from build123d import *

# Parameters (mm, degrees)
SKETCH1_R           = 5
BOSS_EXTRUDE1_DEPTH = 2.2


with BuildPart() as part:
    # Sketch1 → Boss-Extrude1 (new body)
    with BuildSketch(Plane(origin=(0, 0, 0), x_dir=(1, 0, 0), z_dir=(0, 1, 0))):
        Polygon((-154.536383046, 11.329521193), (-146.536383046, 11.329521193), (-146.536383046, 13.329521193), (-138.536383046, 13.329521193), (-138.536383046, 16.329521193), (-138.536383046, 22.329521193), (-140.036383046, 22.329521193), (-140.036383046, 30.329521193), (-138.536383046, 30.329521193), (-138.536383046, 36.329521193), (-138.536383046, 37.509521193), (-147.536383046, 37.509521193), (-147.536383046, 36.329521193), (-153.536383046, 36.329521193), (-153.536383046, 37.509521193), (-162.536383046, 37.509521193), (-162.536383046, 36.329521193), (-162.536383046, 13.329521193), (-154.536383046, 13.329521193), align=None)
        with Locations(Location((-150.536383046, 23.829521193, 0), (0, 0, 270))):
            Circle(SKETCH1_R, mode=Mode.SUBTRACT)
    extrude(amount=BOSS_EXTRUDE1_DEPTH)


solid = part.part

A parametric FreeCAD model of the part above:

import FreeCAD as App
import Part
import Sketcher

doc = App.newDocument("Part")
body = doc.addObject("PartDesign::Body", "Body")

sketch1 = body.newObject("Sketcher::SketchObject", "Sketch")
sketch1.AttachmentSupport = (doc.getObject("XZ_Plane"), [""])
sketch1.MapMode = "FlatFace"
sketch1.addGeometry(Part.LineSegment(App.Vector(-154.5, -11.3, 0), App.Vector(-146.5, -11.3, 0)), False)
sketch1.addGeometry(Part.LineSegment(App.Vector(-146.5, -11.3, 0), App.Vector(-146.5, -13.3, 0)), False)
sketch1.addGeometry(Part.LineSegment(App.Vector(-146.5, -13.3, 0), App.Vector(-138.5, -13.3, 0)), False)
sketch1.addGeometry(Part.LineSegment(App.Vector(-138.5, -13.3, 0), App.Vector(-138.5, -22.3, 0)), False)
sketch1.addGeometry(Part.LineSegment(App.Vector(-138.5, -22.3, 0), App.Vector(-140, -22.3, 0)), False)
sketch1.addGeometry(Part.LineSegment(App.Vector(-140, -22.3, 0), App.Vector(-140, -30.3, 0)), False)
sketch1.addGeometry(Part.LineSegment(App.Vector(-140, -30.3, 0), App.Vector(-138.5, -30.3, 0)), False)
sketch1.addGeometry(Part.LineSegment(App.Vector(-138.5, -30.3, 0), App.Vector(-138.5, -37.5, 0)), False)
sketch1.addGeometry(Part.LineSegment(App.Vector(-138.5, -37.5, 0), App.Vector(-147.5, -37.5, 0)), False)
sketch1.addGeometry(Part.LineSegment(App.Vector(-147.5, -37.5, 0), App.Vector(-147.5, -36.3, 0)), False)
sketch1.addGeometry(Part.LineSegment(App.Vector(-147.5, -36.3, 0), App.Vector(-153.5, -36.3, 0)), False)
sketch1.addGeometry(Part.LineSegment(App.Vector(-153.5, -36.3, 0), App.Vector(-153.5, -37.5, 0)), False)
sketch1.addGeometry(Part.LineSegment(App.Vector(-153.5, -37.5, 0), App.Vector(-162.5, -37.5, 0)), False)
sketch1.addGeometry(Part.LineSegment(App.Vector(-162.5, -37.5, 0), App.Vector(-162.5, -13.3, 0)), False)
sketch1.addGeometry(Part.LineSegment(App.Vector(-162.5, -13.3, 0), App.Vector(-154.5, -13.3, 0)), False)
sketch1.addGeometry(Part.LineSegment(App.Vector(-154.5, -13.3, 0), App.Vector(-154.5, -11.3, 0)), False)
sketch1.addGeometry(Part.Circle(App.Vector(-150.5, -23.8, 0), App.Vector(0, 0, 1), 5), False)
sketch1.addConstraint(Sketcher.Constraint("Coincident", 0, 2, 1, 1))
sketch1.addConstraint(Sketcher.Constraint("Coincident", 1, 2, 2, 1))
sketch1.addConstraint(Sketcher.Constraint("Coincident", 2, 2, 3, 1))
sketch1.addConstraint(Sketcher.Constraint("Coincident", 3, 2, 4, 1))
sketch1.addConstraint(Sketcher.Constraint("Coincident", 4, 2, 5, 1))
sketch1.addConstraint(Sketcher.Constraint("Coincident", 5, 2, 6, 1))
sketch1.addConstraint(Sketcher.Constraint("Coincident", 6, 2, 7, 1))
sketch1.addConstraint(Sketcher.Constraint("Coincident", 7, 2, 8, 1))
sketch1.addConstraint(Sketcher.Constraint("Coincident", 8, 2, 9, 1))
sketch1.addConstraint(Sketcher.Constraint("Coincident", 9, 2, 10, 1))
sketch1.addConstraint(Sketcher.Constraint("Coincident", 10, 2, 11, 1))
sketch1.addConstraint(Sketcher.Constraint("Coincident", 11, 2, 12, 1))
sketch1.addConstraint(Sketcher.Constraint("Coincident", 12, 2, 13, 1))
sketch1.addConstraint(Sketcher.Constraint("Coincident", 13, 2, 14, 1))
sketch1.addConstraint(Sketcher.Constraint("Coincident", 14, 2, 15, 1))
sketch1.addConstraint(Sketcher.Constraint("Coincident", 15, 2, 0, 1))
sketch1.addConstraint(Sketcher.Constraint("Horizontal", 0))
sketch1.addConstraint(Sketcher.Constraint("Vertical", 1))
sketch1.addConstraint(Sketcher.Constraint("Horizontal", 2))
sketch1.addConstraint(Sketcher.Constraint("Vertical", 3))
sketch1.addConstraint(Sketcher.Constraint("Horizontal", 4))
sketch1.addConstraint(Sketcher.Constraint("Vertical", 5))
sketch1.addConstraint(Sketcher.Constraint("Horizontal", 6))
sketch1.addConstraint(Sketcher.Constraint("Vertical", 7))
sketch1.addConstraint(Sketcher.Constraint("Horizontal", 8))
sketch1.addConstraint(Sketcher.Constraint("Vertical", 9))
sketch1.addConstraint(Sketcher.Constraint("Horizontal", 10))
sketch1.addConstraint(Sketcher.Constraint("Vertical", 11))
sketch1.addConstraint(Sketcher.Constraint("Horizontal", 12))
sketch1.addConstraint(Sketcher.Constraint("Vertical", 13))
sketch1.addConstraint(Sketcher.Constraint("Horizontal", 14))
sketch1.addConstraint(Sketcher.Constraint("Vertical", 15))
sketch1.addConstraint(Sketcher.Constraint("Horizontal", 8, 2, 11, 2))
sketch1.addConstraint(Sketcher.Constraint("Horizontal", 2, 2, 13, 2))
sketch1.addConstraint(Sketcher.Constraint("Vertical", 3, 2, 6, 2))
sketch1.addConstraint(Sketcher.Constraint("Equal", 0, 2))
sketch1.addConstraint(Sketcher.Constraint("Equal", 8, 12))
sketch1.addConstraint(Sketcher.Constraint("Equal", 2, 14))
sketch1.addConstraint(Sketcher.Constraint("Equal", 12, 3))
sketch1.addConstraint(Sketcher.Constraint("Equal", 14, 5))
sketch1.addConstraint(Sketcher.Constraint("Diameter", 16, 10.0))
sketch1.addConstraint(Sketcher.Constraint("DistanceX", 0, 1, 0, 2, 8.0))
sketch1.addConstraint(Sketcher.Constraint("DistanceX", 8, 2, 8, 1, 9.0))
sketch1.addConstraint(Sketcher.Constraint("DistanceY", 1, 2, 1, 1, 2.0))
sketch1.addConstraint(Sketcher.Constraint("DistanceX", 4, 2, 4, 1, 1.5))
sketch1.addConstraint(Sketcher.Constraint("DistanceX", 16, 3, 0, 2, 4.0))
sketch1.addConstraint(Sketcher.Constraint("DistanceY", 9, 2, 5, 2, 6.0))
sketch1.addConstraint(Sketcher.Constraint("DistanceY", 7, 2, 7, 1, 7.18))
sketch1.addConstraint(Sketcher.Constraint("DistanceY", 16, 3, 0, 2, 12.5))
sketch1.addConstraint(Sketcher.Constraint("DistanceY", 16, 3, -1, 1, 23.829521))
sketch1.addConstraint(Sketcher.Constraint("DistanceX", 16, 3, -1, 1, 150.536383))
pad1 = body.newObject("PartDesign::Pad", "Pad")
pad1.Profile = sketch1
pad1.Length = 2.2
pad1.Reversed = True

doc.recompute()
